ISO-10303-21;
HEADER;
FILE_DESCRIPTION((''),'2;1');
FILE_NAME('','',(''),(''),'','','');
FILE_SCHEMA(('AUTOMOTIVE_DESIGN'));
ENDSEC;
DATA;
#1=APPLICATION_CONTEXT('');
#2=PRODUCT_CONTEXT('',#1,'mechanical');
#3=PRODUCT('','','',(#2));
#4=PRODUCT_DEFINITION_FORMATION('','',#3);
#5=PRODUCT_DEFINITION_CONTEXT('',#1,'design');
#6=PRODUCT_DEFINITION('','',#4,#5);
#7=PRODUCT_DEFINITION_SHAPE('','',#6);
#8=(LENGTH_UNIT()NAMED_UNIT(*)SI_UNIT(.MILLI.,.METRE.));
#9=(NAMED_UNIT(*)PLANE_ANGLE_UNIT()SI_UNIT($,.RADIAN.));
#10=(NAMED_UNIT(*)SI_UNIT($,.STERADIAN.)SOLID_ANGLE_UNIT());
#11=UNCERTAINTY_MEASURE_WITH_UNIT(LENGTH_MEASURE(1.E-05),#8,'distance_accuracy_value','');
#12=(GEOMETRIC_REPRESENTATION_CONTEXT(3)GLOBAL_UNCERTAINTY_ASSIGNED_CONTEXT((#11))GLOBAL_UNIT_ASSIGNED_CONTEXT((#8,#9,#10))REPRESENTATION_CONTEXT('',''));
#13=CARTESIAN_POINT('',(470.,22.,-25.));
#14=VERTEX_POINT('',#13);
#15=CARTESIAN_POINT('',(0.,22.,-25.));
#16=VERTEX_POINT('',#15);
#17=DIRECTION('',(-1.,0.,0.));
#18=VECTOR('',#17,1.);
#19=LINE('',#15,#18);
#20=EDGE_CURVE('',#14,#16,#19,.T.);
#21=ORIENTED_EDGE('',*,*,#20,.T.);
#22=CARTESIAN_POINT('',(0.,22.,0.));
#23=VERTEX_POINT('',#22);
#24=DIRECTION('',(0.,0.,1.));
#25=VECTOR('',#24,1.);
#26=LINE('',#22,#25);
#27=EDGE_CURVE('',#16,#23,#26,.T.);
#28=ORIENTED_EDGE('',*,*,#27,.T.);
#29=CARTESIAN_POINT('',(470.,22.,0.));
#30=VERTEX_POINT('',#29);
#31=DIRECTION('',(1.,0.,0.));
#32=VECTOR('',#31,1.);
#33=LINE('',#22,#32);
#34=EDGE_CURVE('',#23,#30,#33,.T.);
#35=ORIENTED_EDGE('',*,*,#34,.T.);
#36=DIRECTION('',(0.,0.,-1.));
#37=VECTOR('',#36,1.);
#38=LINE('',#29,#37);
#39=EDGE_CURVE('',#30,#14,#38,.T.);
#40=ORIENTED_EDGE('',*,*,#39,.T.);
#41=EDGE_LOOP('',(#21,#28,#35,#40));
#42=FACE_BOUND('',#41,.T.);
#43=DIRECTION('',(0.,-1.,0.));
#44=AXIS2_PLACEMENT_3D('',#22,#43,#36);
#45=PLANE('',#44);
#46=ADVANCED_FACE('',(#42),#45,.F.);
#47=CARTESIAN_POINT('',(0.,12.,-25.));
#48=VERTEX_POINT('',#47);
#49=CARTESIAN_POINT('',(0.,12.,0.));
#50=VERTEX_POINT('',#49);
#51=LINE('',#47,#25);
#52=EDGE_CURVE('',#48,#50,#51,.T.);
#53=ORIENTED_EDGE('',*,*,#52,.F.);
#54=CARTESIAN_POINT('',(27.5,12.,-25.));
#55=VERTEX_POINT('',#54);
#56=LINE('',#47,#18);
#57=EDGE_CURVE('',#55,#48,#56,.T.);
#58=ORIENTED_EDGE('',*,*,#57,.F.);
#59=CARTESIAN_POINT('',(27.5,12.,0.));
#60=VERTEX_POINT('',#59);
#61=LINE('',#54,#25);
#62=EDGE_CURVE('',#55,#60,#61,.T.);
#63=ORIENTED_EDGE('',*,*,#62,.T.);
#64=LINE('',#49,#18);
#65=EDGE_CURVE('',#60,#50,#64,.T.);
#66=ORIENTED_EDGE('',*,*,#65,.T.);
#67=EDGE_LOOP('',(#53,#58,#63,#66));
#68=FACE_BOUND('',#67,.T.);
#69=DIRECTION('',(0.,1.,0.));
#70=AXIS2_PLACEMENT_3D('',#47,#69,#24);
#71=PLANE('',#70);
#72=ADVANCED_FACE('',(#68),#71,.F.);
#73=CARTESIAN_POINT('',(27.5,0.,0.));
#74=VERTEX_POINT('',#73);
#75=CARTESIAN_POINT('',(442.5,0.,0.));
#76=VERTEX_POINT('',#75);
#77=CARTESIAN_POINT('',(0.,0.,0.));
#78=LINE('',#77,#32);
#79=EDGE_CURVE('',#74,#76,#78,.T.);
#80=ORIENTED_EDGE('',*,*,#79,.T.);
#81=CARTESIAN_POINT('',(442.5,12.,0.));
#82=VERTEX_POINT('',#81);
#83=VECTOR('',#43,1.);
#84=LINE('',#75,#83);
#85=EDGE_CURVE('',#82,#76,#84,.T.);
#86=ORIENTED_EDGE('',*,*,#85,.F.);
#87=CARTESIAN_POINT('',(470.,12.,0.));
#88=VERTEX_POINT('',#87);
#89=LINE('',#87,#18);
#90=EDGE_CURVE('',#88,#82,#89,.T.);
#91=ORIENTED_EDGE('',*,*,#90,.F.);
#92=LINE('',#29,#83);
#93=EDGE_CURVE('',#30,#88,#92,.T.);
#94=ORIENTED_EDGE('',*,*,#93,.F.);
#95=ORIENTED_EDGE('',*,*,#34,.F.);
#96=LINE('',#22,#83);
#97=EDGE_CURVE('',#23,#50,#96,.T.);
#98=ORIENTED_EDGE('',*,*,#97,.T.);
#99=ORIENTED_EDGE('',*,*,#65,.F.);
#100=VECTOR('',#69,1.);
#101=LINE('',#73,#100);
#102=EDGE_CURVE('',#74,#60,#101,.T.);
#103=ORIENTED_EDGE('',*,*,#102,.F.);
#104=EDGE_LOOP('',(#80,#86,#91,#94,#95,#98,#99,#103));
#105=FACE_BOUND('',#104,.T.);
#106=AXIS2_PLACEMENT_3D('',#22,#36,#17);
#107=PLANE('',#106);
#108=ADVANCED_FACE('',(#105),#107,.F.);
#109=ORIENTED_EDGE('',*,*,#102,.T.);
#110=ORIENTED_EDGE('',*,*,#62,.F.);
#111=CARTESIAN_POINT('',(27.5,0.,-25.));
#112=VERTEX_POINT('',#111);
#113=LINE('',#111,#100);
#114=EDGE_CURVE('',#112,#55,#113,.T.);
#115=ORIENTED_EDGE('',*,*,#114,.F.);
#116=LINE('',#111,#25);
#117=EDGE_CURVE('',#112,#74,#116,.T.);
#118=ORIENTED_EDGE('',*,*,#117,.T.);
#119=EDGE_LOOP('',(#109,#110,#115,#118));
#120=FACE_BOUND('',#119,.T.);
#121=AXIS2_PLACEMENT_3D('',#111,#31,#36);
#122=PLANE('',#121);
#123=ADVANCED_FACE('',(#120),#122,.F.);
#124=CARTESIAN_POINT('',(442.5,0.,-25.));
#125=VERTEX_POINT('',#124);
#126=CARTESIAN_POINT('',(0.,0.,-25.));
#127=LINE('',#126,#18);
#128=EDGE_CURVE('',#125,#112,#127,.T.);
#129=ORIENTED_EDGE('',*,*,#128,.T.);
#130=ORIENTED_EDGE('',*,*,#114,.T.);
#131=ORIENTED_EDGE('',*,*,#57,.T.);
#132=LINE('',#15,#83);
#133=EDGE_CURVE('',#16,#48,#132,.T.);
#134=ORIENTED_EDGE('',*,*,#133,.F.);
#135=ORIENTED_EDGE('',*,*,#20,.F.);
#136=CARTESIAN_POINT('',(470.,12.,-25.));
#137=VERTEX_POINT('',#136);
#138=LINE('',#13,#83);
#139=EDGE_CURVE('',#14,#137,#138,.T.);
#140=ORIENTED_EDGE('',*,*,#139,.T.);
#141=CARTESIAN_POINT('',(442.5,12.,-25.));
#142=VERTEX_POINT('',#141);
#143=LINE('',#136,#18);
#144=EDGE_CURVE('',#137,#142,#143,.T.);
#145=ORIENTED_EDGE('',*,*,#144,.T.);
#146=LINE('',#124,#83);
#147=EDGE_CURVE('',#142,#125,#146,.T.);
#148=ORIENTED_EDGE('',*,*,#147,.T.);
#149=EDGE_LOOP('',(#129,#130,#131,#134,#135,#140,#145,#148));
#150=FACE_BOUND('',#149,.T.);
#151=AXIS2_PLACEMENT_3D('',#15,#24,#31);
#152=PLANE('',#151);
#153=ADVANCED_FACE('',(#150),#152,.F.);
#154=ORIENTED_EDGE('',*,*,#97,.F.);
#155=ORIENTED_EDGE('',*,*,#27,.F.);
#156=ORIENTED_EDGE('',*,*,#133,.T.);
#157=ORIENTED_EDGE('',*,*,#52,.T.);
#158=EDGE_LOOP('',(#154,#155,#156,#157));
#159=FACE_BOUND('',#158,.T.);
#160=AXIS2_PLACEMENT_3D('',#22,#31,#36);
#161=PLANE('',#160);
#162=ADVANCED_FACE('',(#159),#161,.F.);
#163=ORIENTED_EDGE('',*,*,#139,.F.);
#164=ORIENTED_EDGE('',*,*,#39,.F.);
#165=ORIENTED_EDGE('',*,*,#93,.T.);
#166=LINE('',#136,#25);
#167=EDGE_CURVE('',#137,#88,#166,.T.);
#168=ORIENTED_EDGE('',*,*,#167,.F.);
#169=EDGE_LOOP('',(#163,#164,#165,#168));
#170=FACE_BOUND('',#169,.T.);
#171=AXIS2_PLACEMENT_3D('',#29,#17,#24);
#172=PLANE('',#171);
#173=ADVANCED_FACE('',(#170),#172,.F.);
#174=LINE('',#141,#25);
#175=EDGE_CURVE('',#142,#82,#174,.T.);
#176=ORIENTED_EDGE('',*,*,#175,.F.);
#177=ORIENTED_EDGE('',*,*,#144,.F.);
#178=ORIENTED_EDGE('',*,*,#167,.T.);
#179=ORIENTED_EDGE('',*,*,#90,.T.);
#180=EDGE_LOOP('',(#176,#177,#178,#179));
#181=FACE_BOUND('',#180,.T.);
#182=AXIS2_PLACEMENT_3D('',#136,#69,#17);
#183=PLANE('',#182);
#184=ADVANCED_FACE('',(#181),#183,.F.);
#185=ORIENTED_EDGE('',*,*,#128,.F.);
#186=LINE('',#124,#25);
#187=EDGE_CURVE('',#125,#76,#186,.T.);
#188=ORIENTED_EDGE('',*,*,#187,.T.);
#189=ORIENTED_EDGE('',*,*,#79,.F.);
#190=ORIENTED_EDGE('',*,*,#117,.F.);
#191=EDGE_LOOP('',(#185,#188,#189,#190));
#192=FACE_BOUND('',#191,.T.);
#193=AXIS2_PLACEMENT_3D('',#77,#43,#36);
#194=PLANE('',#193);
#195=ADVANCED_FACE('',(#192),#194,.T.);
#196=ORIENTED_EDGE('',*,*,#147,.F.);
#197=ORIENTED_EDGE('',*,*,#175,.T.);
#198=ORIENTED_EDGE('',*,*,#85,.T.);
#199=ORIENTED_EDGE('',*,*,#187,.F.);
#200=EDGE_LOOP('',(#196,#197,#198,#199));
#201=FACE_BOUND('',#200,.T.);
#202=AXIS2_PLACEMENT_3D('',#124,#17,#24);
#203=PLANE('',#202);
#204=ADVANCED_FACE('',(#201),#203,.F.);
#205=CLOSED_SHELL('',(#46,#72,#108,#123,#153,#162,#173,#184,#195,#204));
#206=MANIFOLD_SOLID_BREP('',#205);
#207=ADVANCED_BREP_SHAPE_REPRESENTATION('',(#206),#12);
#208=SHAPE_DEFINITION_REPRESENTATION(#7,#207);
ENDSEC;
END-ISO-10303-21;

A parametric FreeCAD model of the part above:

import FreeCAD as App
import Part
import Sketcher
from FreeCAD import Vector

doc = App.newDocument("Part")
body = doc.addObject("PartDesign::Body", "Body")

# Sketch on XZ plane
sketch1 = body.newObject("Sketcher::SketchObject", "Sketch")
sketch1.AttachmentSupport = (doc.getObject("XZ_Plane"), [""])
sketch1.MapMode = "FlatFace"
sketch1.addGeometry(Part.LineSegment(Vector(0, -25, 0), Vector(0, 0, 0)), False)
sketch1.addGeometry(Part.LineSegment(Vector(0, 0, 0), Vector(470, 0, 0)), False)
sketch1.addGeometry(Part.LineSegment(Vector(470, 0, 0), Vector(470, -25, 0)), False)
sketch1.addGeometry(Part.LineSegment(Vector(470, -25, 0), Vector(0, -25, 0)), False)
sketch1.addConstraint(Sketcher.Constraint("Coincident", 0, 2, 1, 1))
sketch1.addConstraint(Sketcher.Constraint("Coincident", 1, 2, 2, 1))
sketch1.addConstraint(Sketcher.Constraint("Coincident", 2, 2, 3, 1))
sketch1.addConstraint(Sketcher.Constraint("Coincident", 3, 2, 0, 1))
sketch1.addConstraint(Sketcher.Constraint("Vertical", 0))
sketch1.addConstraint(Sketcher.Constraint("Horizontal", 1))
sketch1.addConstraint(Sketcher.Constraint("Vertical", 2))
sketch1.addConstraint(Sketcher.Constraint("Horizontal", 3))
sketch1.addConstraint(Sketcher.Constraint("Coincident", 0, 2, -1, 1))
sketch1.addConstraint(Sketcher.Constraint("DistanceX", 1, 1, 1, 2, 470.0))
sketch1.addConstraint(Sketcher.Constraint("DistanceY", 0, 1, 0, 2, 25.0))
pad1 = body.newObject("PartDesign::Pad", "Pad")
pad1.Profile = sketch1
pad1.Length = 22
pad1.Reversed = True

# Sketch on XY plane
sketch2 = body.newObject("Sketcher::SketchObject", "Sketch001")
sketch2.AttachmentSupport = (doc.getObject("XY_Plane"), [""])
sketch2.MapMode = "FlatFace"
sketch2.addGeometry(Part.LineSegment(Vector(442, 12, 0), Vector(442, 0, 0)), False)
sketch2.addGeometry(Part.LineSegment(Vector(442, 0, 0), Vector(470, 0, 0)), False)
sketch2.addGeometry(Part.LineSegment(Vector(470, 0, 0), Vector(470, 12, 0)), False)
sketch2.addGeometry(Part.LineSegment(Vector(470, 12, 0), Vector(442, 12, 0)), False)
sketch2.addConstraint(Sketcher.Constraint("Coincident", 0, 2, 1, 1))
sketch2.addConstraint(Sketcher.Constraint("Coincident", 1, 2, 2, 1))
sketch2.addConstraint(Sketcher.Constraint("Coincident", 2, 2, 3, 1))
sketch2.addConstraint(Sketcher.Constraint("Coincident", 3, 2, 0, 1))
sketch2.addConstraint(Sketcher.Constraint("Vertical", 0))
sketch2.addConstraint(Sketcher.Constraint("Horizontal", 1))
sketch2.addConstraint(Sketcher.Constraint("Vertical", 2))
sketch2.addConstraint(Sketcher.Constraint("Horizontal", 3))
sketch2.addConstraint(Sketcher.Constraint("PointOnObject", 0, 2, -1))
sketch2.addConstraint(Sketcher.Constraint("DistanceY", 0, 2, 0, 1, 12.0))
sketch2.addConstraint(Sketcher.Constraint("DistanceX", 1, 1, 1, 2, 27.5))
sketch2.addConstraint(Sketcher.Constraint("DistanceX", -1, 1, 1, 2, 470.0))
pocket1 = body.newObject("PartDesign::Pocket", "Pocket")
pocket1.Profile = sketch2
pocket1.Type = "ThroughAll"

# Sketch on XY plane
sketch3 = body.newObject("Sketcher::SketchObject", "Sketch002")
sketch3.AttachmentSupport = (doc.getObject("XY_Plane"), [""])
sketch3.MapMode = "FlatFace"
sketch3.addGeometry(Part.LineSegment(Vector(0, 12, 0), Vector(0, 0, 0)), False)
sketch3.addGeometry(Part.LineSegment(Vector(0, 0, 0), Vector(28, 0, 0)), False)
sketch3.addGeometry(Part.LineSegment(Vector(28, 0, 0), Vector(28, 12, 0)), False)
sketch3.addGeometry(Part.LineSegment(Vector(28, 12, 0), Vector(0, 12, 0)), False)
sketch3.addConstraint(Sketcher.Constraint("Coincident", 0, 2, 1, 1))
sketch3.addConstraint(Sketcher.Constraint("Coincident", 1, 2, 2, 1))
sketch3.addConstraint(Sketcher.Constraint("Coincident", 2, 2, 3, 1))
sketch3.addConstraint(Sketcher.Constraint("Coincident", 3, 2, 0, 1))
sketch3.addConstraint(Sketcher.Constraint("Vertical", 0))
sketch3.addConstraint(Sketcher.Constraint("Horizontal", 1))
sketch3.addConstraint(Sketcher.Constraint("Vertical", 2))
sketch3.addConstraint(Sketcher.Constraint("Horizontal", 3))
sketch3.addConstraint(Sketcher.Constraint("Coincident", 0, 2, -1, 1))
sketch3.addConstraint(Sketcher.Constraint("DistanceY", 0, 2, 0, 1, 12.0))
sketch3.addConstraint(Sketcher.Constraint("DistanceX", 1, 1, 1, 2, 27.5))
pocket2 = body.newObject("PartDesign::Pocket", "Pocket001")
pocket2.Profile = sketch3
pocket2.Type = "ThroughAll"

doc.recompute()
